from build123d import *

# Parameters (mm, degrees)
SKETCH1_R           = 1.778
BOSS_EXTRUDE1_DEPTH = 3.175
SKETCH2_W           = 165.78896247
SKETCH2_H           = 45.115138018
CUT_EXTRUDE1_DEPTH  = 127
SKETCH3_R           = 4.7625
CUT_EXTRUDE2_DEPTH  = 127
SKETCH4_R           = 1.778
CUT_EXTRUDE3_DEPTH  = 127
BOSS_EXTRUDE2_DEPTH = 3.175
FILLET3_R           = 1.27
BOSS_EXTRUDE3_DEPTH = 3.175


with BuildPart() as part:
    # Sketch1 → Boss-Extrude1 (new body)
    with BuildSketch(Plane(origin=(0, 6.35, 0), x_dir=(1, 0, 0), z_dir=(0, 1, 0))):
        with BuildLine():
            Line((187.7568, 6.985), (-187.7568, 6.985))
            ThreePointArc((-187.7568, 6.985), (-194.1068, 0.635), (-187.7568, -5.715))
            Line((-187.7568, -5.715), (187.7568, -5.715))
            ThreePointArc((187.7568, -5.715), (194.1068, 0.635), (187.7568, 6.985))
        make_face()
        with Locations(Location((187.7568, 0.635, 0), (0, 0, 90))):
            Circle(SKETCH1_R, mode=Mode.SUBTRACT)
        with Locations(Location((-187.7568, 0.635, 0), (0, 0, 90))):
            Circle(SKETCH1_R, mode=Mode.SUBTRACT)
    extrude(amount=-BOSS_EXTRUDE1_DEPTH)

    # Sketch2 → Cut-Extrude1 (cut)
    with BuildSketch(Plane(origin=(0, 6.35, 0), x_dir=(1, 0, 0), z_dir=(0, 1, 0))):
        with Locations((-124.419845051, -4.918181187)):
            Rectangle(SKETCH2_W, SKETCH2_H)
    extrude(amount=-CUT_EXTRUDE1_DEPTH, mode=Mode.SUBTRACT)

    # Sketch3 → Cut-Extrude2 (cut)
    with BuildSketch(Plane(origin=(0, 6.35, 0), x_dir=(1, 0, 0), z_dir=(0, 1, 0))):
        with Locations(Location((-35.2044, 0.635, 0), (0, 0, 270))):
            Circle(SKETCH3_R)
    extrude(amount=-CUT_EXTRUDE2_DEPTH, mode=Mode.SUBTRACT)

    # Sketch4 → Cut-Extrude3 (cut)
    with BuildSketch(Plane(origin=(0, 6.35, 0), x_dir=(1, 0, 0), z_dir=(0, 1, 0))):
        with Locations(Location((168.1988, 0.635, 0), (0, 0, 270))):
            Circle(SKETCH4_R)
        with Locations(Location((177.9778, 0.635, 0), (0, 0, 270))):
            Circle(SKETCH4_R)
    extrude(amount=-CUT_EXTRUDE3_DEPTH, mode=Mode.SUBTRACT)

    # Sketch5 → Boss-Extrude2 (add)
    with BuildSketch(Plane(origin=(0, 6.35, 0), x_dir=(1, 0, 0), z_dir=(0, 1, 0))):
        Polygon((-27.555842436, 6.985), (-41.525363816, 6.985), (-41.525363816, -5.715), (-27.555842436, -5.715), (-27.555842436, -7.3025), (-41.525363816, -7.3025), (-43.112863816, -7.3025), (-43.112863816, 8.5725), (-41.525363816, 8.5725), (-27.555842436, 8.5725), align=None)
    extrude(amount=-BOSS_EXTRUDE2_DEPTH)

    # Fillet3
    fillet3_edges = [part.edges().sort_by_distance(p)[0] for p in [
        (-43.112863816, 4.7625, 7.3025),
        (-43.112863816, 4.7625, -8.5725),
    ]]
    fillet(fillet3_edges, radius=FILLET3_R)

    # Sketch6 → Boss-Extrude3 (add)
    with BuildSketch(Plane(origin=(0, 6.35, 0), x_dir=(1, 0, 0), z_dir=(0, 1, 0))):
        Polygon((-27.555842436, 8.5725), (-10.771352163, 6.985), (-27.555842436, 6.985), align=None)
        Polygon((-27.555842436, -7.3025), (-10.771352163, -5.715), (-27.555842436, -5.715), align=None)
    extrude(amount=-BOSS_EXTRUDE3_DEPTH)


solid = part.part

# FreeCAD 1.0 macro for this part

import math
import FreeCAD as App
import Part
import Sketcher
Q = App.Units.Quantity


def edges_at(feature, points):
    """Names of the edges that pass closest to the given points."""
    edges = feature.Shape.Edges
    near = lambda p: min(range(len(edges)), key=lambda i: edges[i].distToShape(Part.Vertex(*p))[0])
    return sorted({f"Edge{near(p) + 1}" for p in points})


def add_polygon(sketch, points):
    """Adds a closed chain of lines whose ends are joined by coincident constraints."""
    first, n = sketch.GeometryCount, len(points)
    for a, b in zip(points, points[1:] + points[:1]):
        sketch.addGeometry(Part.LineSegment(App.Vector(*a, 0), App.Vector(*b, 0)), False)
    for i in range(n):
        sketch.addConstraint(Sketcher.Constraint("Coincident", first + i, 2, first + (i + 1) % n, 1))

doc = App.newDocument("Part")
body = doc.addObject("PartDesign::Body", "Body")

sketch1 = doc.addObject("Sketcher::SketchObject", "Sketch")
body.addObject(sketch1)
sketch1.AttachmentSupport = (doc.XZ_Plane, [""])
sketch1.MapMode = "FlatFace"
sketch1.AttachmentOffset = App.Placement(App.Vector(0, 0, -0.25 * 25.4), App.Rotation())
sketch1.addGeometry(Part.LineSegment(App.Vector(187.8, -7, 0), App.Vector(-187.8, -7, 0)), False)
sketch1.addGeometry(Part.ArcOfCircle(Part.Circle(App.Vector(-187.8, -0.6, 0), App.Vector(0, 0, 1), 6.3), math.radians(90), math.radians(270)), False)
sketch1.addGeometry(Part.LineSegment(App.Vector(-187.8, 5.7, 0), App.Vector(187.8, 5.7, 0)), False)
sketch1.addGeometry(Part.ArcOfCircle(Part.Circle(App.Vector(187.8, -0.6, 0), App.Vector(0, 0, 1), 6.3), math.radians(-90), math.radians(90)), False)
sketch1.addGeometry(Part.Circle(App.Vector(-187.8, -0.6, 0), App.Vector(0, 0, 1), 1.8), False)
sketch1.addGeometry(Part.Circle(App.Vector(187.8, -0.6, 0), App.Vector(0, 0, 1), 1.8), False)
sketch1.addConstraint(Sketcher.Constraint("Tangent", 0, 2, 1, 2))
sketch1.addConstraint(Sketcher.Constraint("Tangent", 1, 1, 2, 1))
sketch1.addConstraint(Sketcher.Constraint("Tangent", 2, 2, 3, 2))
sketch1.addConstraint(Sketcher.Constraint("Tangent", 3, 1, 0, 1))
sketch1.addConstraint(Sketcher.Constraint("Horizontal", 0))
sketch1.addConstraint(Sketcher.Constraint("Horizontal", 2))
sketch1.addConstraint(Sketcher.Constraint("Coincident", 4, 3, 1, 3))
sketch1.addConstraint(Sketcher.Constraint("Coincident", 5, 3, 3, 3))
sketch1.addConstraint(Sketcher.Constraint("Equal", 4, 5))
sketch1.addConstraint(Sketcher.Constraint("Diameter", 4, Q("0.14 in")))
sketch1.addConstraint(Sketcher.Constraint("Radius", 1, Q("0.25 in")))
sketch1.addConstraint(Sketcher.Constraint("DistanceX", 0, 2, 0, 1, Q("14.784 in")))
sketch1.addConstraint(Sketcher.Constraint("DistanceX", 1, 3, -1, 1, Q("7.392 in")))
sketch1.addConstraint(Sketcher.Constraint("DistanceY", 1, 3, -1, 1, Q("0.025 in")))
pad1 = doc.addObject("PartDesign::Pad", "Pad")
body.addObject(pad1)
pad1.Profile = sketch1
pad1.Length = Q("0.125 in")

sketch2 = doc.addObject("Sketcher::SketchObject", "Sketch001")
body.addObject(sketch2)
sketch2.AttachmentSupport = (doc.XZ_Plane, [""])
sketch2.MapMode = "FlatFace"
sketch2.AttachmentOffset = App.Placement(App.Vector(0, 0, -0.25 * 25.4), App.Rotation())
add_polygon(sketch2, [(-207, -18), (-207, 27), (-42, 27), (-42, -18)])
sketch2.addConstraint(Sketcher.Constraint("Vertical", 0))
sketch2.addConstraint(Sketcher.Constraint("Horizontal", 1))
sketch2.addConstraint(Sketcher.Constraint("Vertical", 2))
sketch2.addConstraint(Sketcher.Constraint("Horizontal", 3))
sketch2.addConstraint(Sketcher.Constraint("DistanceY", 0, 1, 0, 2, Q("45.115138 mm")))
sketch2.addConstraint(Sketcher.Constraint("DistanceX", 1, 1, 1, 2, Q("165.788962 mm")))
sketch2.addConstraint(Sketcher.Constraint("DistanceY", -1, 1, 0, 2, Q("27.47575 mm")))
sketch2.addConstraint(Sketcher.Constraint("DistanceX", 0, 2, -1, 1, Q("207.314326 mm")))
pocket1 = doc.addObject("PartDesign::Pocket", "Pocket")
body.addObject(pocket1)
pocket1.Profile = sketch2
pocket1.Length = Q("5 in")
pocket1.Reversed = True

sketch3 = doc.addObject("Sketcher::SketchObject", "Sketch002")
body.addObject(sketch3)
sketch3.AttachmentSupport = (doc.XZ_Plane, [""])
sketch3.MapMode = "FlatFace"
sketch3.AttachmentOffset = App.Placement(App.Vector(0, 0, -0.25 * 25.4), App.Rotation())
sketch3.addGeometry(Part.Circle(App.Vector(-35.2, -0.6, 0), App.Vector(0, 0, 1), 4.8), False)
sketch3.addConstraint(Sketcher.Constraint("Diameter", 0, Q("0.375 in")))
sketch3.addConstraint(Sketcher.Constraint("DistanceX", 0, 3, -1, 1, Q("1.386 in")))
sketch3.addConstraint(Sketcher.Constraint("DistanceY", 0, 3, -1, 1, Q("0.025 in")))
pocket2 = doc.addObject("PartDesign::Pocket", "Pocket001")
body.addObject(pocket2)
pocket2.Profile = sketch3
pocket2.Length = Q("5 in")
pocket2.Reversed = True

sketch4 = doc.addObject("Sketcher::SketchObject", "Sketch003")
body.addObject(sketch4)
sketch4.AttachmentSupport = (doc.XZ_Plane, [""])
sketch4.MapMode = "FlatFace"
sketch4.AttachmentOffset = App.Placement(App.Vector(0, 0, -0.25 * 25.4), App.Rotation())
sketch4.addGeometry(Part.Circle(App.Vector(168.2, -0.6, 0), App.Vector(0, 0, 1), 1.8), False)
sketch4.addGeometry(Part.Circle(App.Vector(178, -0.6, 0), App.Vector(0, 0, 1), 1.8), False)
sketch4.addConstraint(Sketcher.Constraint("Equal", 0, 1))
sketch4.addConstraint(Sketcher.Constraint("Horizontal", 0, 3, 1, 3))
sketch4.addConstraint(Sketcher.Constraint("Diameter", 0, Q("0.14 in")))
sketch4.addConstraint(Sketcher.Constraint("DistanceX", -1, 1, 0, 3, Q("6.622 in")))
sketch4.addConstraint(Sketcher.Constraint("DistanceY", 0, 3, -1, 1, Q("0.025 in")))
sketch4.addConstraint(Sketcher.Constraint("DistanceX", -1, 1, 1, 3, Q("7.007 in")))
pocket3 = doc.addObject("PartDesign::Pocket", "Pocket002")
body.addObject(pocket3)
pocket3.Profile = sketch4
pocket3.Length = Q("5 in")
pocket3.Reversed = True

sketch5 = doc.addObject("Sketcher::SketchObject", "Sketch004")
body.addObject(sketch5)
sketch5.AttachmentSupport = (doc.XZ_Plane, [""])
sketch5.MapMode = "FlatFace"
sketch5.AttachmentOffset = App.Placement(App.Vector(0, 0, -0.25 * 25.4), App.Rotation())
add_polygon(sketch5, [(-41.5, -7), (-27.6, -7), (-27.6, -8.6), (-43.1, -8.6), (-43.1, 7.3), (-27.6, 7.3), (-27.6, 5.7), (-41.5, 5.7)])
sketch5.addConstraint(Sketcher.Constraint("Horizontal", 0))
sketch5.addConstraint(Sketcher.Constraint("Vertical", 1))
sketch5.addConstraint(Sketcher.Constraint("Horizontal", 2))
sketch5.addConstraint(Sketcher.Constraint("Vertical", 3))
sketch5.addConstraint(Sketcher.Constraint("Horizontal", 4))
sketch5.addConstraint(Sketcher.Constraint("Vertical", 5))
sketch5.addConstraint(Sketcher.Constraint("Horizontal", 6))
sketch5.addConstraint(Sketcher.Constraint("Vertical", 7))
sketch5.addConstraint(Sketcher.Constraint("Vertical", 1, 2, 4, 2))
sketch5.addConstraint(Sketcher.Constraint("Equal", 1, 5))
sketch5.addConstraint(Sketcher.Constraint("DistanceY", 7, 2, 7, 1, Q("0.5 in")))
sketch5.addConstraint(Sketcher.Constraint("DistanceY", 1, 2, 1, 1, Q("0.0625 in")))
sketch5.addConstraint(Sketcher.Constraint("DistanceY", 0, 2, -1, 1, Q("0.275 in")))
sketch5.addConstraint(Sketcher.Constraint("DistanceX", 3, 2, 6, 2, Q("0.0625 in")))
sketch5.addConstraint(Sketcher.Constraint("DistanceX", 0, 1, 0, 2, Q("13.969521 mm")))
sketch5.addConstraint(Sketcher.Constraint("DistanceX", 0, 2, -1, 1, Q("27.555842 mm")))
pad2 = doc.addObject("PartDesign::Pad", "Pad001")
body.addObject(pad2)
pad2.Profile = sketch5
pad2.Length = Q("0.125 in")
doc.recompute()

fillet = doc.addObject("PartDesign::Fillet", "Fillet")
body.addObject(fillet)
fillet.Base = (pad2, edges_at(pad2, [(-43.113, 4.763, 7.303), (-43.113, 4.763, -8.572)]))
fillet.Radius = Q("0.05 in")

sketch6 = doc.addObject("Sketcher::SketchObject", "Sketch005")
body.addObject(sketch6)
sketch6.AttachmentSupport = (doc.XZ_Plane, [""])
sketch6.MapMode = "FlatFace"
sketch6.AttachmentOffset = App.Placement(App.Vector(0, 0, -0.25 * 25.4), App.Rotation())
add_polygon(sketch6, [(-10.8, -7), (-27.6, -8.6), (-27.6, -7)])
add_polygon(sketch6, [(-27.6, 7.3), (-10.8, 5.7), (-27.6, 5.7)])
sketch6.addConstraint(Sketcher.Constraint("Vertical", 1))
sketch6.addConstraint(Sketcher.Constraint("Horizontal", 2))
sketch6.addConstraint(Sketcher.Constraint("Horizontal", 4))
sketch6.addConstraint(Sketcher.Constraint("Vertical", 5))
sketch6.addConstraint(Sketcher.Constraint("Vertical", 2, 2, 3, 2))
sketch6.addConstraint(Sketcher.Constraint("Vertical", 1, 2, 4, 2))
sketch6.addConstraint(Sketcher.Constraint("Equal", 1, 5))
sketch6.addConstraint(Sketcher.Constraint("DistanceY", 2, 2, 3, 2, Q("0.5 in")))
sketch6.addConstraint(Sketcher.Constraint("DistanceY", 1, 1, 1, 2, Q("0.0625 in")))
sketch6.addConstraint(Sketcher.Constraint("DistanceY", 1, 2, -1, 1, Q("0.275 in")))
sketch6.addConstraint(Sketcher.Constraint("DistanceX", 2, 1, 2, 2, Q("16.78449 mm")))
sketch6.addConstraint(Sketcher.Constraint("DistanceX", 0, 2, -1, 1, Q("27.555842 mm")))
pad3 = doc.addObject("PartDesign::Pad", "Pad002")
body.addObject(pad3)
pad3.Profile = sketch6
pad3.Length = Q("0.125 in")

doc.recompute()
